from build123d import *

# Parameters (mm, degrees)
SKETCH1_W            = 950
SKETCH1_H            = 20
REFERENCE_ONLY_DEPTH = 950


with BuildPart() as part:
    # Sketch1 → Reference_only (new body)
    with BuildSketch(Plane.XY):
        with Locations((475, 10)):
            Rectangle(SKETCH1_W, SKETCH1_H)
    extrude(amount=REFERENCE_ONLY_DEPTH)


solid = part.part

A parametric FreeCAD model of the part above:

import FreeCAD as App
import Part
import Sketcher

doc = App.newDocument("Part")
body = doc.addObject("PartDesign::Body", "Body")

sketch1 = body.newObject("Sketcher::SketchObject", "Sketch")
sketch1.AttachmentSupport = (doc.getObject("XY_Plane"), [""])
sketch1.MapMode = "FlatFace"
sketch1.addGeometry([
    Part.LineSegment(App.Vector(0, 20, 0), App.Vector(0, 0, 0)),
    Part.LineSegment(App.Vector(0, 0, 0), App.Vector(950, 0, 0)),
    Part.LineSegment(App.Vector(950, 0, 0), App.Vector(950, 20, 0)),
    Part.LineSegment(App.Vector(950, 20, 0), App.Vector(0, 20, 0)),
], False)
sketch1.addConstraint([
    Sketcher.Constraint("Coincident", 0, 2, 1, 1),
    Sketcher.Constraint("Coincident", 1, 2, 2, 1),
    Sketcher.Constraint("Coincident", 2, 2, 3, 1),
    Sketcher.Constraint("Coincident", 3, 2, 0, 1),
    Sketcher.Constraint("Vertical", 0),
    Sketcher.Constraint("Horizontal", 1),
    Sketcher.Constraint("Vertical", 2),
    Sketcher.Constraint("Horizontal", 3),
    Sketcher.Constraint("Coincident", 0, 2, -1, 1),
    Sketcher.Constraint("DistanceX", 1, 1, 1, 2, 950.0),
    Sketcher.Constraint("DistanceY", 0, 2, 0, 1, 20.0),
])
pad1 = body.newObject("PartDesign::Pad", "Pad")
pad1.Profile = sketch1
pad1.Length = 950

doc.recompute()
